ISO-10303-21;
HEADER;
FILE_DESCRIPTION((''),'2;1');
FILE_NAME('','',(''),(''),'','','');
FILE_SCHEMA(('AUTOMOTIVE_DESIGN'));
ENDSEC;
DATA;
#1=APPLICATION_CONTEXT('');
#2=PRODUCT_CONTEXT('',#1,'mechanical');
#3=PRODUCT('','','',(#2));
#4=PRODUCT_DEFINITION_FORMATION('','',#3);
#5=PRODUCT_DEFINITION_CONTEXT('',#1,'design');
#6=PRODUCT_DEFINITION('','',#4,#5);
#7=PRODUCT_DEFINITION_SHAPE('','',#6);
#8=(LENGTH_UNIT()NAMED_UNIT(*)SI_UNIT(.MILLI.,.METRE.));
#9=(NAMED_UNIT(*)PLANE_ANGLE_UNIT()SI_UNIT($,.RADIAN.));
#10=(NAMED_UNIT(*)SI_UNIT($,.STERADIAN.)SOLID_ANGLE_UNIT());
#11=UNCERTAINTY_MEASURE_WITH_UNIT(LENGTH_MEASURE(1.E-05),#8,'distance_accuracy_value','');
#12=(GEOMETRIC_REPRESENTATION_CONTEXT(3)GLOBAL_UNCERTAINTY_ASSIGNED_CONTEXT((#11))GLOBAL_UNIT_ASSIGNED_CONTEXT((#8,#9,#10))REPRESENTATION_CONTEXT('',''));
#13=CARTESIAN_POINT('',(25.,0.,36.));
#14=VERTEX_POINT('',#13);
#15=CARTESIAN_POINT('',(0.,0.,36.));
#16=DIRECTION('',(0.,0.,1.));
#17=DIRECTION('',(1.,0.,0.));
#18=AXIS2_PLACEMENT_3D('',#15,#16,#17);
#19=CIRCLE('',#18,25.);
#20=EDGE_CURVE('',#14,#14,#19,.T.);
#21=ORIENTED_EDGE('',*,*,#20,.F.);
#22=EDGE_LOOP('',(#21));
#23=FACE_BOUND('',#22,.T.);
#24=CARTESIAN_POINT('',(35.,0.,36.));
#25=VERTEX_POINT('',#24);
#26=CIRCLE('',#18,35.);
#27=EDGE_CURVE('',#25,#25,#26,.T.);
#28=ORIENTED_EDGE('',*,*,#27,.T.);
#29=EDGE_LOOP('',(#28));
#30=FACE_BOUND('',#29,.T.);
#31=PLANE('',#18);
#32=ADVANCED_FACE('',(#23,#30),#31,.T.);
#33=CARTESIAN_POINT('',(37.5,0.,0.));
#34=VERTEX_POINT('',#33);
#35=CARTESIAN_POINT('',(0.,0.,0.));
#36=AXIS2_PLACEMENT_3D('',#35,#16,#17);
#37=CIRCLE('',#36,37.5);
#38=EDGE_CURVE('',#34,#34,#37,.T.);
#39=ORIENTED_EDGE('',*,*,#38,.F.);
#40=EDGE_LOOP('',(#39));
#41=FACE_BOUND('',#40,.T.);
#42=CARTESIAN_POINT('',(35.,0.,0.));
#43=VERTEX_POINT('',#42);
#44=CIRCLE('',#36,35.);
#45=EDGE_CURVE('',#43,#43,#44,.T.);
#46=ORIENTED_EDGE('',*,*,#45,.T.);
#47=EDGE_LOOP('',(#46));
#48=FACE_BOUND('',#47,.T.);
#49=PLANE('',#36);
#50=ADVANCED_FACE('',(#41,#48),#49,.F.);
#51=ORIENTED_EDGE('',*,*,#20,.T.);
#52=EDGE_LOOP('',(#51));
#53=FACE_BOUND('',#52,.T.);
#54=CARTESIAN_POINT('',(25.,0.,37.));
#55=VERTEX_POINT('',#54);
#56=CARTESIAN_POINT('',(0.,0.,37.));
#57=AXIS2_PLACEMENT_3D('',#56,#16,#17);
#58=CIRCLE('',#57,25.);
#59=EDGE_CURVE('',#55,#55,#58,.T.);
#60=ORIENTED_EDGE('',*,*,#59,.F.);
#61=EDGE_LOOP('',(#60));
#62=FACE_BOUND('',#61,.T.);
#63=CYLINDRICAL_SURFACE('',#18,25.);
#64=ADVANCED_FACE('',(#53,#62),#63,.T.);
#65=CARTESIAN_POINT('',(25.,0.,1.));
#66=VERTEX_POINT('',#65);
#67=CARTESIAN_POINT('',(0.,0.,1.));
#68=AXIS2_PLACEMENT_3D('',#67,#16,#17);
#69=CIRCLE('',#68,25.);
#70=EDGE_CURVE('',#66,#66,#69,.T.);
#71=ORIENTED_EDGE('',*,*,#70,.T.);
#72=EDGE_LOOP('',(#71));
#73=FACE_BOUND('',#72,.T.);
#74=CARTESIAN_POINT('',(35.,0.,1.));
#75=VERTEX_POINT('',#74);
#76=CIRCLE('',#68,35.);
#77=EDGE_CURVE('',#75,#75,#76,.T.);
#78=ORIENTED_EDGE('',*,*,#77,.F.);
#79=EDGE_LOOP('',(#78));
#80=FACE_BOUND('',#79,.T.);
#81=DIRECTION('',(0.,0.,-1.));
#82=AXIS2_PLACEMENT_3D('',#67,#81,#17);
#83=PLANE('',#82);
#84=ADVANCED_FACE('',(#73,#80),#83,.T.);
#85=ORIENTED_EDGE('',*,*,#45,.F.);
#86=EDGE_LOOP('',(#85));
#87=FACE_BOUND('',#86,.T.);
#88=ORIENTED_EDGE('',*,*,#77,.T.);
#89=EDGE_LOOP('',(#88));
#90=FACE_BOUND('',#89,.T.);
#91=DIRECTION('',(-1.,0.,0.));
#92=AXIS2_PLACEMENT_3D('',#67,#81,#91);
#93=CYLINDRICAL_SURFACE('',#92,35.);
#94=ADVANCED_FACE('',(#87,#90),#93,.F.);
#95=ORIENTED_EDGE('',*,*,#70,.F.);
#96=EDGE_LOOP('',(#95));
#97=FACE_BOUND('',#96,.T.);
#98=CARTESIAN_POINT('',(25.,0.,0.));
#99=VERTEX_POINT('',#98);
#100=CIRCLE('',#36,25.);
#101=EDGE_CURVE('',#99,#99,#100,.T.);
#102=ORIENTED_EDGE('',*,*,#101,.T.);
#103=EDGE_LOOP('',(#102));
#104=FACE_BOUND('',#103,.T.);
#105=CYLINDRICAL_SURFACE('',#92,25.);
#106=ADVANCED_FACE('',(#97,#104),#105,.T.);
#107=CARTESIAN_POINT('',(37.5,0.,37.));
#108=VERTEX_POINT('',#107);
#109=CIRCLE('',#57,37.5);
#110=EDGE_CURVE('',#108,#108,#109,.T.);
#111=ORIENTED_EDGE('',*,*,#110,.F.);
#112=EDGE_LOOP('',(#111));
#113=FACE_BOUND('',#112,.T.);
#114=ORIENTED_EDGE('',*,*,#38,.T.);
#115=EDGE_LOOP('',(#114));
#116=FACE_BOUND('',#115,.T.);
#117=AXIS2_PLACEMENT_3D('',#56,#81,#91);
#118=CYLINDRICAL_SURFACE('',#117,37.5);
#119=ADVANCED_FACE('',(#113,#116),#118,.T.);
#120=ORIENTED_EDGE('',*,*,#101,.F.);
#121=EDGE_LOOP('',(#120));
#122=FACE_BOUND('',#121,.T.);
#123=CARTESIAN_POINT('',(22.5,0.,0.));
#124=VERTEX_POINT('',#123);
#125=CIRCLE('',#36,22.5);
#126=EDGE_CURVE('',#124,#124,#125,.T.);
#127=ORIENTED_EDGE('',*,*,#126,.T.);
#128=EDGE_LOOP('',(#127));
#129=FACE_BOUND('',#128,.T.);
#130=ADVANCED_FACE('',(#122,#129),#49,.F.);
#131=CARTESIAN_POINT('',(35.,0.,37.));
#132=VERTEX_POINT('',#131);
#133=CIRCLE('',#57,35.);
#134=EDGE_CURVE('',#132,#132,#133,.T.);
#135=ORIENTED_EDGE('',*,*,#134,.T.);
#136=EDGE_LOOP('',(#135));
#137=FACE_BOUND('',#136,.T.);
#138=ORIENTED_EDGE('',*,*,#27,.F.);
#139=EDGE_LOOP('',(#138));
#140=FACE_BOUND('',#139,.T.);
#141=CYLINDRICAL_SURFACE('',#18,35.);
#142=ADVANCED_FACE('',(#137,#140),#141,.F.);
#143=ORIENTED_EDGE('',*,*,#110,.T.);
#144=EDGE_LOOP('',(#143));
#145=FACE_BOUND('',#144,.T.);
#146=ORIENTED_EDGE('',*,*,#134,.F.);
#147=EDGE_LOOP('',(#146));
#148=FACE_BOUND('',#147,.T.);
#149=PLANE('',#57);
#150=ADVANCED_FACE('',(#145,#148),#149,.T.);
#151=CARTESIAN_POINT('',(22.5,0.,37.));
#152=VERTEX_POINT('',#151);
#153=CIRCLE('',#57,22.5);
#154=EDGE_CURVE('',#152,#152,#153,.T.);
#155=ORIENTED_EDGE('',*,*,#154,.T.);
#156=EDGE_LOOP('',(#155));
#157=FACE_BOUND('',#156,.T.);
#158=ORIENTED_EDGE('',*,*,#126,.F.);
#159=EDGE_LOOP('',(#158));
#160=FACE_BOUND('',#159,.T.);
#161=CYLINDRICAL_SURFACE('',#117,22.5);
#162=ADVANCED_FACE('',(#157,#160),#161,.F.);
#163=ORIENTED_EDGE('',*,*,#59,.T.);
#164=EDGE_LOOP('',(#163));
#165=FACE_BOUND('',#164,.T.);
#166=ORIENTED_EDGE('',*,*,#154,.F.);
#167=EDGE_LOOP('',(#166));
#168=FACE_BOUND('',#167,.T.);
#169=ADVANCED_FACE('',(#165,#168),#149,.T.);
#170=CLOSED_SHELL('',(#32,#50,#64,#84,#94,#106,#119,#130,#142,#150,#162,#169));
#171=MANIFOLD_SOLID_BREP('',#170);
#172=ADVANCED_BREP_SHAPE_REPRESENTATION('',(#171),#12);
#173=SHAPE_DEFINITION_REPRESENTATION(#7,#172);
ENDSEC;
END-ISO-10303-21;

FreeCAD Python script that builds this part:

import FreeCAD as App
import Part
import Sketcher

V = App.Vector

doc = App.newDocument("Part")
body = doc.addObject("PartDesign::Body", "Body")

sketch1 = doc.addObject("Sketcher::SketchObject", "Sketch")
body.addObject(sketch1)
sketch1.AttachmentSupport = (doc.XY_Plane, [""])
sketch1.MapMode = "FlatFace"
sketch1.addGeometry([
    Part.Circle(V(0, 0, 0), V(0, 0, 1), 38),
    Part.Circle(V(0, 0, 0), V(0, 0, 1), 22),
], False)
sketch1.addConstraint([
    Sketcher.Constraint("Coincident", 0, 3, -1, 1),
    Sketcher.Constraint("Coincident", 1, 3, -1, 1),
    Sketcher.Constraint("Diameter", 0, 75.0),
    Sketcher.Constraint("Diameter", 1, 45.0),
])
pad1 = doc.addObject("PartDesign::Pad", "Pad")
body.addObject(pad1)
pad1.Profile = sketch1
pad1.Length = 37

sketch2 = doc.addObject("Sketcher::SketchObject", "Sketch001")
body.addObject(sketch2)
sketch2.AttachmentSupport = (doc.XY_Plane, [""])
sketch2.MapMode = "FlatFace"
sketch2.AttachmentOffset = App.Placement(V(0, 0, 37), App.Rotation())
sketch2.addGeometry([
    Part.Circle(V(0, 0, 0), V(0, 0, 1), 35),
    Part.Circle(V(0, 0, 0), V(0, 0, 1), 25),
], False)
sketch2.addConstraint([
    Sketcher.Constraint("Coincident", 0, 3, -1, 1),
    Sketcher.Constraint("Coincident", 1, 3, -1, 1),
    Sketcher.Constraint("Diameter", 0, 70.0),
    Sketcher.Constraint("Diameter", 1, 50.0),
])
pocket1 = doc.addObject("PartDesign::Pocket", "Pocket")
body.addObject(pocket1)
pocket1.Profile = sketch2
pocket1.Length = 1
doc.recompute()

datumplane = doc.addObject("PartDesign::Plane", "DatumPlane")
body.addObject(datumplane)
datumplane.AttachmentSupport = (doc.XY_Plane, [""])
datumplane.MapMode = "FlatFace"
datumplane.AttachmentOffset = App.Placement(V(0, 0, 18.5), App.Rotation())
mirrored = doc.addObject("PartDesign::Mirrored", "Mirrored")
body.addObject(mirrored)
mirrored.Originals = [pocket1]
mirrored.MirrorPlane = (datumplane, [""])
body.Tip = mirrored

doc.recompute()
